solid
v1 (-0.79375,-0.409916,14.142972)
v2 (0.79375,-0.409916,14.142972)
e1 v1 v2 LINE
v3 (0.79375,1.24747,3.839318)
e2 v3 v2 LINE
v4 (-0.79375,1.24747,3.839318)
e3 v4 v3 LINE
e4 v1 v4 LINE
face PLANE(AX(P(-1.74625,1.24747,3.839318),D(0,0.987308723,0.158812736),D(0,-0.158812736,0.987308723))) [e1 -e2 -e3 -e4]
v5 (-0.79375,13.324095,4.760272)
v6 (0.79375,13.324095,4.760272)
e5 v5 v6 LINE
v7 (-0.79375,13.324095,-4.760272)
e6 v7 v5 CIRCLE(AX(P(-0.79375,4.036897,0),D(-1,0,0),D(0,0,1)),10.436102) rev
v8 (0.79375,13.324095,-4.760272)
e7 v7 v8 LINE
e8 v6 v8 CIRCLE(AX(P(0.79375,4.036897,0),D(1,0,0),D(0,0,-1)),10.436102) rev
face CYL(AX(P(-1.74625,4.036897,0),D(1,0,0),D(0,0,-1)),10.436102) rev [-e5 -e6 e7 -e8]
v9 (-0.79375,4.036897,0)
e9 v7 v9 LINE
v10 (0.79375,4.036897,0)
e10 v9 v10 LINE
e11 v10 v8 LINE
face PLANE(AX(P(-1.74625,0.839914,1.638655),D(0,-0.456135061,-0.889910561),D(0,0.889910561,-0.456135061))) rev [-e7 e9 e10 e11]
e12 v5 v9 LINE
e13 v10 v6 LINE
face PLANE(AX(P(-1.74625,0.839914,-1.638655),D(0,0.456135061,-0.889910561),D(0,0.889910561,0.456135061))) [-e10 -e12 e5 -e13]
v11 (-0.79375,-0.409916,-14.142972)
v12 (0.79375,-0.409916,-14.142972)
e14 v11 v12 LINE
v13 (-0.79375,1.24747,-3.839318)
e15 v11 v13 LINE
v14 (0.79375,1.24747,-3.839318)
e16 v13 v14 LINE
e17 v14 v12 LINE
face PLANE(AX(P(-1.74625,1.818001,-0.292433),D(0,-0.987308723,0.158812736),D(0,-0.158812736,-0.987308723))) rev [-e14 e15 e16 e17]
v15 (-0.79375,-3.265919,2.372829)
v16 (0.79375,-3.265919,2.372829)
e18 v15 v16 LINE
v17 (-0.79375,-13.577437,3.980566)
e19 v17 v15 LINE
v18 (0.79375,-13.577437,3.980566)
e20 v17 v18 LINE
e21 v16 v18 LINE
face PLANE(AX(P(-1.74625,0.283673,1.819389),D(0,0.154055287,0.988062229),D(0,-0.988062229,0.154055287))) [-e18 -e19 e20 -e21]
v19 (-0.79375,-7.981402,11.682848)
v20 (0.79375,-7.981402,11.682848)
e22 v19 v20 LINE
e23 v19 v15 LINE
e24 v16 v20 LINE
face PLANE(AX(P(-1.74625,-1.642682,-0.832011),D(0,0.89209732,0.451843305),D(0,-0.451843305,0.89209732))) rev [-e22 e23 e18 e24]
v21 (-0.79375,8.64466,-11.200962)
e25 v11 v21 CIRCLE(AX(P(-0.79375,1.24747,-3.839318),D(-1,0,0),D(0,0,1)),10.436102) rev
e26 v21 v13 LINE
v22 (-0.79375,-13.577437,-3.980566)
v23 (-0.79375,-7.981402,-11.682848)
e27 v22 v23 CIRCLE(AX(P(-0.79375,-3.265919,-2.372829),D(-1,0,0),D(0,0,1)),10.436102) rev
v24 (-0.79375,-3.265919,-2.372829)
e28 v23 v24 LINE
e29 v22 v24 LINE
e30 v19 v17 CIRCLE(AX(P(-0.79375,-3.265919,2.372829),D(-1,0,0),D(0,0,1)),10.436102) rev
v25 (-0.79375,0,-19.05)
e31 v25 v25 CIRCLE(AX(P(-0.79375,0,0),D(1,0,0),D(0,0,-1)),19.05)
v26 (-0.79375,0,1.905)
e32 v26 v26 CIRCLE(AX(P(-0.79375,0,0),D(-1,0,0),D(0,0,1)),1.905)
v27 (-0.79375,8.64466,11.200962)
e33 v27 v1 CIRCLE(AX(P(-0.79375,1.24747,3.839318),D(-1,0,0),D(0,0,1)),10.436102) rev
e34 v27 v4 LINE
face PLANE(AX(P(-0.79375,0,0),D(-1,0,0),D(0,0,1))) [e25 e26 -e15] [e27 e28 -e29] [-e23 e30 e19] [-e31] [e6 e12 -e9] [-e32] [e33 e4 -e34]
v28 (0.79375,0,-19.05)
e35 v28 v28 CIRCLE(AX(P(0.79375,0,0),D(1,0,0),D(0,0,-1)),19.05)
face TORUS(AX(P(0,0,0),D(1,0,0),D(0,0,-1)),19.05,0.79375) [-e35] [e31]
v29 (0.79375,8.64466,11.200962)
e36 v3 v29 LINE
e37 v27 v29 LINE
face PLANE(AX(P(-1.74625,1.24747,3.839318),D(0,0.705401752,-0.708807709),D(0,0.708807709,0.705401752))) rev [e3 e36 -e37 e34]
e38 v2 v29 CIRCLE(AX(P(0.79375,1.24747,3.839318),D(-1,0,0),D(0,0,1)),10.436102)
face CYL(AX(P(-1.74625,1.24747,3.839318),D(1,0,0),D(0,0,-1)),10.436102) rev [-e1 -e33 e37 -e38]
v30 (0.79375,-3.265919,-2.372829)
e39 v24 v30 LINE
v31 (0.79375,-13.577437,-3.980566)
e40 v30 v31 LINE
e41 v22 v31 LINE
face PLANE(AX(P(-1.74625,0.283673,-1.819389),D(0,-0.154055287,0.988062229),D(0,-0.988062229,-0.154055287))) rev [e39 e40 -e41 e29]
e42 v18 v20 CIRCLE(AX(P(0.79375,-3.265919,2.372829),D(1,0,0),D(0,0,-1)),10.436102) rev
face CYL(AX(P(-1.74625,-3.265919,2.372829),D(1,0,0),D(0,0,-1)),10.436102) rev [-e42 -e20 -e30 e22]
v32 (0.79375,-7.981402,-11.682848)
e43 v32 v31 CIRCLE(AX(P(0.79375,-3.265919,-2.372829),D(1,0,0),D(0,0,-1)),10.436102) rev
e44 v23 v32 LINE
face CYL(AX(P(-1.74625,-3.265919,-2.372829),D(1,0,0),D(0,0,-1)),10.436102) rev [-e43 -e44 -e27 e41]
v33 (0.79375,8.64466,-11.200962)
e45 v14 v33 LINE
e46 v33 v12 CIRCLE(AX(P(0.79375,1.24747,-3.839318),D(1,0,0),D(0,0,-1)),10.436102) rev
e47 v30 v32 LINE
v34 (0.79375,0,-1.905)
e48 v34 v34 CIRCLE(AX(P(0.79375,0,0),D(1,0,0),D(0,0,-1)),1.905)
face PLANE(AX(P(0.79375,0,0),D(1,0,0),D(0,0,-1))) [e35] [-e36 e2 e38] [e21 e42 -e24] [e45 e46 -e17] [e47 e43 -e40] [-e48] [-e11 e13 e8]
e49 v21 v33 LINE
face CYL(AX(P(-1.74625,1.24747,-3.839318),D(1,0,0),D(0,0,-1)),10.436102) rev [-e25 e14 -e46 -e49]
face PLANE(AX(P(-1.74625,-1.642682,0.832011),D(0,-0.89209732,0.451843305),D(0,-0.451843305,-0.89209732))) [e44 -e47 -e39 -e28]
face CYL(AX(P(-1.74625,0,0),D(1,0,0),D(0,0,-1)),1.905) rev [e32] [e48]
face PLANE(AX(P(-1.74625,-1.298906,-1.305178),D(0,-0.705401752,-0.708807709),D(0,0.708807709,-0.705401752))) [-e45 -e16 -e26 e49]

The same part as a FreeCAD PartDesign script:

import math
import FreeCAD as App
import Part
import Sketcher
from FreeCAD import Vector
Q = App.Units.Quantity

doc = App.newDocument("Part")
body = doc.addObject("PartDesign::Body", "Body")

# Sketch on XY plane
sketch1 = body.newObject("Sketcher::SketchObject", "Sketch")
sketch1.AttachmentSupport = (doc.getObject("XY_Plane"), [""])
sketch1.MapMode = "FlatFace"
sketch1.addGeometry([
    Part.LineSegment(Vector(0.79375, 0, 0), Vector(0.79375, 19.05, 0)),
    Part.ArcOfCircle(Part.Circle(Vector(0, 19.05, 0), Vector(0, 0, 1), 0.79375), math.radians(0), math.radians(180)),
    Part.LineSegment(Vector(-0.79375, 19.05, 0), Vector(-0.79375, 0, 0)),
    Part.LineSegment(Vector(-0.79375, 0, 0), Vector(0.79375, 0, 0)),
], False)
sketch1.addConstraint([
    Sketcher.Constraint("Tangent", 0, 2, 1, 1),
    Sketcher.Constraint("Tangent", 1, 2, 2, 1),
    Sketcher.Constraint("Coincident", 2, 2, 3, 1),
    Sketcher.Constraint("Coincident", 3, 2, 0, 1),
    Sketcher.Constraint("Vertical", 0),
    Sketcher.Constraint("Vertical", 2),
    Sketcher.Constraint("Horizontal", 3),
    Sketcher.Constraint("Symmetric", 2, 2, 3, 2, -1, 1),
    Sketcher.Constraint("Radius", 1, Q("0.03125 in")),
    Sketcher.Constraint("DistanceY", 0, 1, 0, 2, Q("0.75 in")),
])
revolution = body.newObject("PartDesign::Revolution", "Revolution")
revolution.Profile = sketch1
revolution.ReferenceAxis = (sketch1, ["H_Axis"])
revolution.Angle = 360

# Sketch on YZ plane
sketch2 = body.newObject("Sketcher::SketchObject", "Sketch001")
sketch2.AttachmentSupport = (doc.getObject("YZ_Plane"), [""])
sketch2.MapMode = "FlatFace"
sketch2.AttachmentOffset = App.Placement(Vector(0, 0, 0.03125 * 25.4), App.Rotation())
sketch2.addGeometry([
    Part.LineSegment(Vector(13.324095, 4.760272, 0), Vector(4.036897, 0, 0)),  # 0
    Part.LineSegment(Vector(4.036897, 0, 0), Vector(13.324095, -4.760272, 0)),  # 1
    Part.ArcOfCircle(Part.Circle(Vector(4.036897, 0, 0), Vector(0, 0, 1), 10.436102), math.radians(-27.13799), math.radians(0)),  # 2
    Part.ArcOfCircle(Part.Circle(Vector(4.036897, 0, 0), Vector(0, 0, 1), 10.436102), math.radians(0), math.radians(27.13799)),  # 3
    Part.ArcOfCircle(Part.Circle(Vector(1.24747, -3.839318, 0), Vector(0, 0, 1), 10.436102), math.radians(-99.13799), math.radians(-44.86201)),  # 4
    Part.LineSegment(Vector(8.64466, -11.200962, 0), Vector(1.24747, -3.839318, 0)),  # 5
    Part.LineSegment(Vector(1.24747, -3.839318, 0), Vector(-0.409916, -14.142972, 0)),  # 6
    Part.ArcOfCircle(Part.Circle(Vector(-3.265919, -2.372829, 0), Vector(0, 0, 1), 10.436102), math.radians(-171.13799), math.radians(-116.86201)),  # 7
    Part.LineSegment(Vector(-7.981402, -11.682848, 0), Vector(-3.265919, -2.372829, 0)),  # 8
    Part.LineSegment(Vector(-3.265919, -2.372829, 0), Vector(-13.577437, -3.980566, 0)),  # 9
    Part.ArcOfCircle(Part.Circle(Vector(-3.265919, 2.372829, 0), Vector(0, 0, 1), 10.436102), math.radians(116.86201), math.radians(171.13799)),  # 10
    Part.LineSegment(Vector(-13.577437, 3.980566, 0), Vector(-3.265919, 2.372829, 0)),  # 11
    Part.LineSegment(Vector(-3.265919, 2.372829, 0), Vector(-7.981402, 11.682848, 0)),  # 12
    Part.LineSegment(Vector(1.24747, 3.839318, 0), Vector(8.64466, 11.200962, 0)),  # 13
    Part.ArcOfCircle(Part.Circle(Vector(1.24747, 3.839318, 0), Vector(0, 0, 1), 10.436102), math.radians(44.86201), math.radians(99.13799)),  # 14
    Part.LineSegment(Vector(-0.409916, 14.142972, 0), Vector(1.24747, 3.839318, 0)),  # 15
    Part.Circle(Vector(0, 0, 0), Vector(0, 0, 1), 1.905),  # 16
], False)
sketch2.addConstraint([
    Sketcher.Constraint("Coincident", 0, 2, 1, 1),
    Sketcher.Constraint("Coincident", 1, 2, 2, 1),
    Sketcher.Constraint("Tangent", 2, 2, 3, 1),
    Sketcher.Constraint("Coincident", 3, 2, 0, 1),
    Sketcher.Constraint("Coincident", 4, 2, 5, 1),
    Sketcher.Constraint("Coincident", 5, 2, 6, 1),
    Sketcher.Constraint("Coincident", 6, 2, 4, 1),
    Sketcher.Constraint("Coincident", 7, 2, 8, 1),
    Sketcher.Constraint("Coincident", 8, 2, 9, 1),
    Sketcher.Constraint("Coincident", 9, 2, 7, 1),
    Sketcher.Constraint("Coincident", 10, 2, 11, 1),
    Sketcher.Constraint("Coincident", 11, 2, 12, 1),
    Sketcher.Constraint("Coincident", 12, 2, 10, 1),
    Sketcher.Constraint("Coincident", 13, 2, 14, 1),
    Sketcher.Constraint("Coincident", 14, 2, 15, 1),
    Sketcher.Constraint("Coincident", 15, 2, 13, 1),
    Sketcher.Constraint("Coincident", 16, 3, -1, 1),
    Sketcher.Constraint("Coincident", 0, 2, 2, 3),
    Sketcher.Constraint("Coincident", 5, 2, 4, 3),
    Sketcher.Constraint("Coincident", 8, 2, 7, 3),
    Sketcher.Constraint("Coincident", 11, 2, 10, 3),
    Sketcher.Constraint("Coincident", 15, 2, 14, 3),
    Sketcher.Constraint("Equal", 2, 3),
    Sketcher.Constraint("Equal", 3, 4),
    Sketcher.Constraint("Equal", 4, 7),
    Sketcher.Constraint("Equal", 7, 10),
    Sketcher.Constraint("Equal", 10, 14),
    Sketcher.Constraint("Symmetric", 7, 3, 10, 3, -1),
    Sketcher.Constraint("Symmetric", 4, 3, 14, 3, -1),
    Sketcher.Constraint("Symmetric", 1, 2, 3, 2, -1),
    Sketcher.Constraint("PointOnObject", 2, 2, -1),
    Sketcher.Constraint("Vertical", 9, 2, 10, 2),
    Sketcher.Constraint("Vertical", 7, 2, 12, 2),
    Sketcher.Constraint("Vertical", 4, 2, 13, 2),
    Sketcher.Constraint("Vertical", 6, 2, 14, 2),
    Sketcher.Constraint("Diameter", 16, Q("0.15 in")),
    Sketcher.Constraint("Radius", 2, 10.436102),
    Sketcher.Constraint("DistanceX", -1, 1, 2, 2, 14.473),
    Sketcher.Constraint("DistanceX", 7, 2, -1, 1, 7.981402),
    Sketcher.Constraint("DistanceX", -1, 1, 4, 3, 1.24747),
    Sketcher.Constraint("DistanceX", 7, 3, -1, 1, 3.265919),
    Sketcher.Constraint("DistanceY", 7, 3, -1, 1, 2.372829),
    Sketcher.Constraint("DistanceX", -1, 1, 4, 2, 8.64466),
    Sketcher.Constraint("DistanceY", 4, 3, 7, 3, 1.466489),
    Sketcher.Constraint("DistanceY", 4, 2, 1, 2, 6.44069),
    Sketcher.Constraint("DistanceY", 6, 2, 4, 2, 2.94201),
    Sketcher.Constraint("DistanceX", 9, 2, 7, 3, 10.311518),
])
pocket1 = body.newObject("PartDesign::Pocket", "Pocket")
pocket1.Profile = sketch2
pocket1.Length = Q("0.1 in")

doc.recompute()
